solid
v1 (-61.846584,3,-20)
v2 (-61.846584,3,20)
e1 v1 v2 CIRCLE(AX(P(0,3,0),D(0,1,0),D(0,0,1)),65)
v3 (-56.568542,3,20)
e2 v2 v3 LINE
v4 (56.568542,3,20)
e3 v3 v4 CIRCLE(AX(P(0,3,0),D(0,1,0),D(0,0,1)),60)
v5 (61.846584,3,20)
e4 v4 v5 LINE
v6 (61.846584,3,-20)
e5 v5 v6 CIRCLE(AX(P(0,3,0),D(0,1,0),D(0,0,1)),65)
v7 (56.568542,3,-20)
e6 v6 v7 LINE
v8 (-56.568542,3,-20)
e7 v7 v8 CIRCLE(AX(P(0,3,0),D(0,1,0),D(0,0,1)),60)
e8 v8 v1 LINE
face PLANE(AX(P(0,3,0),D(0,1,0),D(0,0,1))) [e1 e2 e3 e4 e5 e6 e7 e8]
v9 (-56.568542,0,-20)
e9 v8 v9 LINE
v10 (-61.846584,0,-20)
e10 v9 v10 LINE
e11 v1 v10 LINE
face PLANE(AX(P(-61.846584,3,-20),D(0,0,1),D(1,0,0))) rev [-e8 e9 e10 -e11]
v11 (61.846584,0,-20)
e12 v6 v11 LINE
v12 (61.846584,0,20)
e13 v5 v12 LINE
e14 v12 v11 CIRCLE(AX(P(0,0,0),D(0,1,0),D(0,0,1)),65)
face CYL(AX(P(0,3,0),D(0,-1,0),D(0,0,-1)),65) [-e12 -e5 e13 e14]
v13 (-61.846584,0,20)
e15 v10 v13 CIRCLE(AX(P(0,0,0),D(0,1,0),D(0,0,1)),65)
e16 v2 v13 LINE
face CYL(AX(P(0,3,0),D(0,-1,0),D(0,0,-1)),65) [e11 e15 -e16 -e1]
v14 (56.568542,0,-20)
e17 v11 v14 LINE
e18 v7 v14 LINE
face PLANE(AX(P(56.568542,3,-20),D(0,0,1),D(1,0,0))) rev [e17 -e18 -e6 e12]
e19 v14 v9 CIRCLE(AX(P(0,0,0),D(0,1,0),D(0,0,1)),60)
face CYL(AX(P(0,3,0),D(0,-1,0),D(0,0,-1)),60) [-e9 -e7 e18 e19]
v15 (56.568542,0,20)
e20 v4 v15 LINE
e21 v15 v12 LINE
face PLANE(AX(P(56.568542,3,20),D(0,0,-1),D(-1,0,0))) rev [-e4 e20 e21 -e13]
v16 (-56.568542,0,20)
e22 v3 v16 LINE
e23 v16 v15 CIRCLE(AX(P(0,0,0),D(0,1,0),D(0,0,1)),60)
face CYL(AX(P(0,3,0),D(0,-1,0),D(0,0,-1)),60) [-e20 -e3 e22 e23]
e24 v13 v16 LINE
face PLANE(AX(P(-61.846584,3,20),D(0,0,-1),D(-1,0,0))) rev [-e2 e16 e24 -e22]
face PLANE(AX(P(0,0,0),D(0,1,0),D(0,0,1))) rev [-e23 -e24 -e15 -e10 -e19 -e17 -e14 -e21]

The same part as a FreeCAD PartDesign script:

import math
import FreeCAD as App
import Part
import Sketcher

V = App.Vector

doc = App.newDocument("Part")
params = doc.addObject("Spreadsheet::Sheet", "Params")
for row, (alias, value) in enumerate([
    ("sketch1_radius", "60 mm"),
    ("sketch1_radius2", "65 mm"),
    ("pad1_length", "3 mm"),
], start=1):
    params.set(f"A{row}", alias)
    params.set(f"B{row}", "=" + value)
    params.setAlias(f"B{row}", alias)

body = doc.addObject("PartDesign::Body", "Body")

sketch1 = body.newObject("Sketcher::SketchObject", "Sketch")
sketch1.AttachmentSupport = (doc.getObject("XZ_Plane"), [""])
sketch1.MapMode = "FlatFace"
sketch1.addGeometry([
    Part.LineSegment(V(-61.846584, 20, 0), V(-56.568542, 20, 0)),
    Part.ArcOfCircle(Part.Circle(V(0, 0, 0), V(0, 0, 1), 60), math.radians(19.471221), math.radians(160.528779)),
    Part.LineSegment(V(56.568542, 20, 0), V(61.846584, 20, 0)),
    Part.ArcOfCircle(Part.Circle(V(0, 0, 0), V(0, 0, 1), 65), math.radians(-17.920213), math.radians(17.920213)),
    Part.LineSegment(V(61.846584, -20, 0), V(56.568542, -20, 0)),
    Part.ArcOfCircle(Part.Circle(V(0, 0, 0), V(0, 0, 1), 60), math.radians(-160.528779), math.radians(-19.471221)),
    Part.LineSegment(V(-56.568542, -20, 0), V(-61.846584, -20, 0)),
    Part.ArcOfCircle(Part.Circle(V(0, 0, 0), V(0, 0, 1), 65), math.radians(162.079787), math.radians(197.920213)),
], False)
sketch1.addConstraint([
    Sketcher.Constraint("Coincident", 0, 2, 1, 2),
    Sketcher.Constraint("Coincident", 1, 1, 2, 1),
    Sketcher.Constraint("Coincident", 2, 2, 3, 2),
    Sketcher.Constraint("Coincident", 3, 1, 4, 1),
    Sketcher.Constraint("Coincident", 4, 2, 5, 2),
    Sketcher.Constraint("Coincident", 5, 1, 6, 1),
    Sketcher.Constraint("Coincident", 6, 2, 7, 2),
    Sketcher.Constraint("Coincident", 7, 1, 0, 1),
    Sketcher.Constraint("Horizontal", 0),
    Sketcher.Constraint("Horizontal", 2),
    Sketcher.Constraint("Horizontal", 4),
    Sketcher.Constraint("Horizontal", 6),
    Sketcher.Constraint("Coincident", 1, 3, -1, 1),
    Sketcher.Constraint("Coincident", 3, 3, -1, 1),
    Sketcher.Constraint("Coincident", 5, 3, -1, 1),
    Sketcher.Constraint("Coincident", 7, 3, -1, 1),
    Sketcher.Constraint("Equal", 1, 5),
    Sketcher.Constraint("Equal", 3, 7),
    Sketcher.Constraint("Horizontal", 0, 2, 1, 1),
    Sketcher.Constraint("Horizontal", 4, 2, 5, 1),
    Sketcher.Constraint("Vertical", 2, 2, 3, 1),
    Sketcher.Constraint("Radius", 1, 60.0),
    Sketcher.Constraint("Radius", 3, 65.0),
    Sketcher.Constraint("DistanceY", -1, 1, 0, 2, 20.0),
])
sketch1.setExpression("Constraints[21]", "Params.sketch1_radius")
sketch1.setExpression("Constraints[22]", "Params.sketch1_radius2")
pad1 = body.newObject("PartDesign::Pad", "Pad")
pad1.Profile = sketch1
pad1.setExpression("Length", "Params.pad1_length")
pad1.Reversed = True

doc.recompute()
